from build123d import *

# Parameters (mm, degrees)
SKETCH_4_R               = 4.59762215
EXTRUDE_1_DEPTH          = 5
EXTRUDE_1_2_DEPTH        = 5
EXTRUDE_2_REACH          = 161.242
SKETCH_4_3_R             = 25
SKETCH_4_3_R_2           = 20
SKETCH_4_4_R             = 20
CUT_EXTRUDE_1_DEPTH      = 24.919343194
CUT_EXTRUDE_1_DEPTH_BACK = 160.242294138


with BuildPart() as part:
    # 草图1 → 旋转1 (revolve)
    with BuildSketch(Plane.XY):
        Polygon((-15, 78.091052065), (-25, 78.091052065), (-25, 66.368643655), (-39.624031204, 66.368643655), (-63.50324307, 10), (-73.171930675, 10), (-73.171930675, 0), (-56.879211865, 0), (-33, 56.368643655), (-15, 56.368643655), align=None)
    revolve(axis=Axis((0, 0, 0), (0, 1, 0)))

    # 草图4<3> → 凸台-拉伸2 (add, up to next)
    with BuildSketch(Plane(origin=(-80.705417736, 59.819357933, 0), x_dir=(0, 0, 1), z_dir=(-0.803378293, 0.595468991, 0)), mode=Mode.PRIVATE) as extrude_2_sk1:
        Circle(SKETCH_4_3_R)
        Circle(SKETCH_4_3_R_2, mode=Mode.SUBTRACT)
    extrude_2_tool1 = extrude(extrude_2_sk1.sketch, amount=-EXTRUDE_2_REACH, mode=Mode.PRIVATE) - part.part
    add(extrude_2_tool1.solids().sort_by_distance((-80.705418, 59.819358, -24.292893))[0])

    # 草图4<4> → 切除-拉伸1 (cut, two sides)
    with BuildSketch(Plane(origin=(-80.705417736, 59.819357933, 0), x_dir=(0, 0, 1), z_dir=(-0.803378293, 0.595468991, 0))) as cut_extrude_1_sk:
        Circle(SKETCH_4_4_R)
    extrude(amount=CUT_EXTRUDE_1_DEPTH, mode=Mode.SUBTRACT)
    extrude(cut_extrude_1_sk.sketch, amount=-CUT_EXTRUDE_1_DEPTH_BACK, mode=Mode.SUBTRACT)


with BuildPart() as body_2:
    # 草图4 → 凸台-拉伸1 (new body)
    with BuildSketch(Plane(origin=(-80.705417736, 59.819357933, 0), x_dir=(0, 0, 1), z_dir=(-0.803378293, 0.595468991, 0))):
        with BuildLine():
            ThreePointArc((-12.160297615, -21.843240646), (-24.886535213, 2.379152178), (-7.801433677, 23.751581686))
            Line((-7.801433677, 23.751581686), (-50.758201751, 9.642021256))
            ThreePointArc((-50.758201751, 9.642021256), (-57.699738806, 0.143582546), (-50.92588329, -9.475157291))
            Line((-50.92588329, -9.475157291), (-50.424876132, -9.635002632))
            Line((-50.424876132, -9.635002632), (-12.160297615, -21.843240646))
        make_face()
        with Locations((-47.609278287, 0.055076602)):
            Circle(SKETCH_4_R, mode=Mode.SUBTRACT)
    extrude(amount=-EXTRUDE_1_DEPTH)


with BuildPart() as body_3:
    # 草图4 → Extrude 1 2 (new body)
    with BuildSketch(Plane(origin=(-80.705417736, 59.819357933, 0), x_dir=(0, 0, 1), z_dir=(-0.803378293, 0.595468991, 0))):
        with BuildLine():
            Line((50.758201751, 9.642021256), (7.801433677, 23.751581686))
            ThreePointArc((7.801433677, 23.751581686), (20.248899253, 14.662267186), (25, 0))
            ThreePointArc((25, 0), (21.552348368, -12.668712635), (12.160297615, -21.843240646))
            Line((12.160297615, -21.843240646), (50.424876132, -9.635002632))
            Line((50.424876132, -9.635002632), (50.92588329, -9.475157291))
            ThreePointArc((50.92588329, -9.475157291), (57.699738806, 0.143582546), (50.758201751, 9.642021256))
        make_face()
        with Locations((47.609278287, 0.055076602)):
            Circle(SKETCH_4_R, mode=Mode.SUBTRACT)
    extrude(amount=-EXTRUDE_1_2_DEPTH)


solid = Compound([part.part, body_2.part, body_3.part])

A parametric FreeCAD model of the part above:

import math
import FreeCAD as App
import Part
import Sketcher

V = App.Vector


def add_polygon(sketch, points):
    """Adds a closed chain of lines whose ends are joined by coincident constraints."""
    first, n = sketch.GeometryCount, len(points)
    for a, b in zip(points, points[1:] + points[:1]):
        sketch.addGeometry(Part.LineSegment(App.Vector(*a, 0), App.Vector(*b, 0)), False)
    for i in range(n):
        sketch.addConstraint(Sketcher.Constraint("Coincident", first + i, 2, first + (i + 1) % n, 1))

doc = App.newDocument("Part")
body = doc.addObject("PartDesign::Body", "Body")

# Sketch on XY plane
sketch1 = body.newObject("Sketcher::SketchObject", "Sketch")
sketch1.AttachmentSupport = (doc.getObject("XY_Plane"), [""])
sketch1.MapMode = "FlatFace"
add_polygon(sketch1, [(-15, 78.091052), (-25, 78.091052), (-25, 66.368644), (-39.624031, 66.368644), (-63.503243, 10), (-73.171931, 10), (-73.171931, 0), (-56.879212, 0), (-33, 56.368644), (-15, 56.368644)])  # lines 0-9
sketch1.addConstraint([
    Sketcher.Constraint("Horizontal", 0),
    Sketcher.Constraint("Vertical", 1),
    Sketcher.Constraint("Horizontal", 2),
    Sketcher.Constraint("Horizontal", 4),
    Sketcher.Constraint("Vertical", 5),
    Sketcher.Constraint("Horizontal", 6),
    Sketcher.Constraint("Horizontal", 8),
    Sketcher.Constraint("Vertical", 9),
    Sketcher.Constraint("PointOnObject", 5, 2, -1),
    Sketcher.Constraint("Parallel", 3, 7),
    Sketcher.Constraint("Equal", 0, 5),
    Sketcher.Constraint("Equal", 3, 7),
    Sketcher.Constraint("DistanceX", 0, 2, 0, 1, 10.0),
    Sketcher.Constraint("DistanceX", 8, 1, 8, 2, 18.0),
    Sketcher.Constraint("DistanceX", 0, 2, -1, 1, 25.0),
    Sketcher.Constraint("DistanceX", 2, 2, 2, 1, 14.624031),
    Sketcher.Constraint("DistanceX", 6, 1, 6, 2, 16.292719),
    Sketcher.Constraint("DistanceY", 1, 2, 1, 1, 11.722408),
    Sketcher.Constraint("DistanceX", 4, 2, 2, 2, 33.547899),
    Sketcher.Constraint("Distance", 3, 61.217977),
])
revolution = body.newObject("PartDesign::Revolution", "Revolution")
revolution.Profile = sketch1
revolution.ReferenceAxis = (sketch1, ["V_Axis"])
revolution.Angle = 360

# Sketch on an angled plane
sketch2 = body.newObject("Sketcher::SketchObject", "Sketch001")
sketch2.Placement = App.Placement(V(-80.705418, 59.819358, 0), App.Rotation(V(0, 0, 1), V(0.595468991, 0.803378293, 0), V(-0.803378293, 0.595468991, 0), "ZXY"))
sketch2.addGeometry([
    Part.Circle(V(0, 0, 0), V(0, 0, 1), 25),
    Part.Circle(V(0, 0, 0), V(0, 0, 1), 20),
], False)
sketch2.addConstraint([
    Sketcher.Constraint("Coincident", 0, 3, -1, 1),
    Sketcher.Constraint("Coincident", 1, 3, -1, 1),
    Sketcher.Constraint("Diameter", 0, 50.0),
    Sketcher.Constraint("Diameter", 1, 40.0),
])
pad1 = body.newObject("PartDesign::Pad", "Pad")
pad1.Profile = sketch2
pad1.Type = "UpToFirst"
pad1.Reversed = True

# Sketch on an angled plane
sketch3 = body.newObject("Sketcher::SketchObject", "Sketch002")
sketch3.Placement = App.Placement(V(-80.705418, 59.819358, 0), App.Rotation(V(0, 0, 1), V(0.595468991, 0.803378293, 0), V(-0.803378293, 0.595468991, 0), "ZXY"))
sketch3.addGeometry(Part.Circle(V(0, 0, 0), V(0, 0, 1), 20), False)
sketch3.addConstraint([
    Sketcher.Constraint("Coincident", 0, 3, -1, 1),
    Sketcher.Constraint("Diameter", 0, 40.0),
])
pocket1 = body.newObject("PartDesign::Pocket", "Pocket")
pocket1.Profile = sketch3
pocket1.Type = "ThroughAll"
pocket1.Midplane = True
body2 = doc.addObject("PartDesign::Body", "Body001")

# Sketch on an angled plane
sketch4 = body2.newObject("Sketcher::SketchObject", "Sketch003")
sketch4.Placement = App.Placement(V(-80.705418, 59.819358, 0), App.Rotation(V(0, 0, 1), V(0.595468991, 0.803378293, 0), V(-0.803378293, 0.595468991, 0), "ZXY"))
sketch4.addGeometry([
    Part.ArcOfCircle(Part.Circle(V(0, 0, 0), V(0, 0, 1), 25), math.radians(108.18326), math.radians(240.894982)),  # 0
    Part.LineSegment(V(-7.801434, 23.751582, 0), V(-50.758202, 9.642021, 0)),  # 1
    Part.ArcOfCircle(Part.Circle(V(-47.609278, 0.055077, 0), V(0, 0, 1), 10.090849), math.radians(108.18326), math.radians(250.811655)),  # 2
    Part.LineSegment(V(-50.925883, -9.475157, 0), V(-50.424876, -9.635003, 0)),  # 3
    Part.LineSegment(V(-50.424876, -9.635003, 0), V(-12.160298, -21.843241, 0)),  # 4
    Part.Circle(V(-47.609278, 0.055077, 0), V(0, 0, 1), 4.597622),  # 5
], False)
sketch4.addConstraint([
    Sketcher.Constraint("Tangent", 0, 1, 1, 1),
    Sketcher.Constraint("Tangent", 1, 2, 2, 1),
    Sketcher.Constraint("Coincident", 2, 2, 3, 1),
    Sketcher.Constraint("Coincident", 3, 2, 4, 1),
    Sketcher.Constraint("Coincident", 4, 2, 0, 2),
    Sketcher.Constraint("Coincident", 0, 3, -1, 1),
    Sketcher.Constraint("Coincident", 5, 3, 2, 3),
    Sketcher.Constraint("Parallel", 3, 4),
    Sketcher.Constraint("Radius", 0, 25.0),
    Sketcher.Constraint("Radius", 2, 10.090849),
    Sketcher.Constraint("Diameter", 5, 9.195244),
    Sketcher.Constraint("Distance", 4, 40.164898),
    Sketcher.Constraint("DistanceX", 1, 2, -1, 1, 50.758202),
    Sketcher.Constraint("Distance", 1, 45.214639),
    Sketcher.Constraint("Distance", 3, 0.525888),
    Sketcher.Constraint("DistanceY", 4, 2, -1, 1, 21.843241),
])
pad2 = body2.newObject("PartDesign::Pad", "Pad001")
pad2.Profile = sketch4
pad2.Length = 5
pad2.Reversed = True
body3 = doc.addObject("PartDesign::Body", "Body002")

# Sketch on an angled plane
sketch5 = body3.newObject("Sketcher::SketchObject", "Sketch004")
sketch5.Placement = App.Placement(V(-80.705418, 59.819358, 0), App.Rotation(V(0, 0, 1), V(0.595468991, 0.803378293, 0), V(-0.803378293, 0.595468991, 0), "ZXY"))
sketch5.addGeometry([
    Part.LineSegment(V(50.758202, 9.642021, 0), V(7.801434, 23.751582, 0)),  # 0
    Part.ArcOfCircle(Part.Circle(V(0, 0, 0), V(0, 0, 1), 25), math.radians(0), math.radians(71.81674)),  # 1
    Part.ArcOfCircle(Part.Circle(V(0, 0, 0), V(0, 0, 1), 25), math.radians(-60.894982), math.radians(0)),  # 2
    Part.LineSegment(V(12.160298, -21.843241, 0), V(50.424876, -9.635003, 0)),  # 3
    Part.LineSegment(V(50.424876, -9.635003, 0), V(50.925883, -9.475157, 0)),  # 4
    Part.ArcOfCircle(Part.Circle(V(47.609278, 0.055077, 0), V(0, 0, 1), 10.090849), math.radians(-70.811655), math.radians(71.81674)),  # 5
    Part.Circle(V(47.609278, 0.055077, 0), V(0, 0, 1), 4.597622),  # 6
], False)
sketch5.addConstraint([
    Sketcher.Constraint("Tangent", 0, 2, 1, 2),
    Sketcher.Constraint("Tangent", 1, 1, 2, 2),
    Sketcher.Constraint("Coincident", 2, 1, 3, 1),
    Sketcher.Constraint("Coincident", 3, 2, 4, 1),
    Sketcher.Constraint("Coincident", 4, 2, 5, 1),
    Sketcher.Constraint("Tangent", 5, 2, 0, 1),
    Sketcher.Constraint("Coincident", 1, 3, -1, 1),
    Sketcher.Constraint("Coincident", 6, 3, 5, 3),
    Sketcher.Constraint("Equal", 1, 2),
    Sketcher.Constraint("PointOnObject", 1, 1, -1),
    Sketcher.Constraint("Parallel", 3, 4),
    Sketcher.Constraint("Radius", 1, 25.0),
    Sketcher.Constraint("Radius", 5, 10.090849),
    Sketcher.Constraint("Diameter", 6, 9.195244),
    Sketcher.Constraint("Distance", 3, 40.164898),
    Sketcher.Constraint("DistanceX", -1, 1, 5, 2, 50.758202),
    Sketcher.Constraint("Distance", 0, 45.214639),
    Sketcher.Constraint("Distance", 4, 0.525888),
    Sketcher.Constraint("DistanceY", 2, 1, -1, 1, 21.843241),
])
pad3 = body3.newObject("PartDesign::Pad", "Pad002")
pad3.Profile = sketch5
pad3.Length = 5
pad3.Reversed = True

doc.recompute()
